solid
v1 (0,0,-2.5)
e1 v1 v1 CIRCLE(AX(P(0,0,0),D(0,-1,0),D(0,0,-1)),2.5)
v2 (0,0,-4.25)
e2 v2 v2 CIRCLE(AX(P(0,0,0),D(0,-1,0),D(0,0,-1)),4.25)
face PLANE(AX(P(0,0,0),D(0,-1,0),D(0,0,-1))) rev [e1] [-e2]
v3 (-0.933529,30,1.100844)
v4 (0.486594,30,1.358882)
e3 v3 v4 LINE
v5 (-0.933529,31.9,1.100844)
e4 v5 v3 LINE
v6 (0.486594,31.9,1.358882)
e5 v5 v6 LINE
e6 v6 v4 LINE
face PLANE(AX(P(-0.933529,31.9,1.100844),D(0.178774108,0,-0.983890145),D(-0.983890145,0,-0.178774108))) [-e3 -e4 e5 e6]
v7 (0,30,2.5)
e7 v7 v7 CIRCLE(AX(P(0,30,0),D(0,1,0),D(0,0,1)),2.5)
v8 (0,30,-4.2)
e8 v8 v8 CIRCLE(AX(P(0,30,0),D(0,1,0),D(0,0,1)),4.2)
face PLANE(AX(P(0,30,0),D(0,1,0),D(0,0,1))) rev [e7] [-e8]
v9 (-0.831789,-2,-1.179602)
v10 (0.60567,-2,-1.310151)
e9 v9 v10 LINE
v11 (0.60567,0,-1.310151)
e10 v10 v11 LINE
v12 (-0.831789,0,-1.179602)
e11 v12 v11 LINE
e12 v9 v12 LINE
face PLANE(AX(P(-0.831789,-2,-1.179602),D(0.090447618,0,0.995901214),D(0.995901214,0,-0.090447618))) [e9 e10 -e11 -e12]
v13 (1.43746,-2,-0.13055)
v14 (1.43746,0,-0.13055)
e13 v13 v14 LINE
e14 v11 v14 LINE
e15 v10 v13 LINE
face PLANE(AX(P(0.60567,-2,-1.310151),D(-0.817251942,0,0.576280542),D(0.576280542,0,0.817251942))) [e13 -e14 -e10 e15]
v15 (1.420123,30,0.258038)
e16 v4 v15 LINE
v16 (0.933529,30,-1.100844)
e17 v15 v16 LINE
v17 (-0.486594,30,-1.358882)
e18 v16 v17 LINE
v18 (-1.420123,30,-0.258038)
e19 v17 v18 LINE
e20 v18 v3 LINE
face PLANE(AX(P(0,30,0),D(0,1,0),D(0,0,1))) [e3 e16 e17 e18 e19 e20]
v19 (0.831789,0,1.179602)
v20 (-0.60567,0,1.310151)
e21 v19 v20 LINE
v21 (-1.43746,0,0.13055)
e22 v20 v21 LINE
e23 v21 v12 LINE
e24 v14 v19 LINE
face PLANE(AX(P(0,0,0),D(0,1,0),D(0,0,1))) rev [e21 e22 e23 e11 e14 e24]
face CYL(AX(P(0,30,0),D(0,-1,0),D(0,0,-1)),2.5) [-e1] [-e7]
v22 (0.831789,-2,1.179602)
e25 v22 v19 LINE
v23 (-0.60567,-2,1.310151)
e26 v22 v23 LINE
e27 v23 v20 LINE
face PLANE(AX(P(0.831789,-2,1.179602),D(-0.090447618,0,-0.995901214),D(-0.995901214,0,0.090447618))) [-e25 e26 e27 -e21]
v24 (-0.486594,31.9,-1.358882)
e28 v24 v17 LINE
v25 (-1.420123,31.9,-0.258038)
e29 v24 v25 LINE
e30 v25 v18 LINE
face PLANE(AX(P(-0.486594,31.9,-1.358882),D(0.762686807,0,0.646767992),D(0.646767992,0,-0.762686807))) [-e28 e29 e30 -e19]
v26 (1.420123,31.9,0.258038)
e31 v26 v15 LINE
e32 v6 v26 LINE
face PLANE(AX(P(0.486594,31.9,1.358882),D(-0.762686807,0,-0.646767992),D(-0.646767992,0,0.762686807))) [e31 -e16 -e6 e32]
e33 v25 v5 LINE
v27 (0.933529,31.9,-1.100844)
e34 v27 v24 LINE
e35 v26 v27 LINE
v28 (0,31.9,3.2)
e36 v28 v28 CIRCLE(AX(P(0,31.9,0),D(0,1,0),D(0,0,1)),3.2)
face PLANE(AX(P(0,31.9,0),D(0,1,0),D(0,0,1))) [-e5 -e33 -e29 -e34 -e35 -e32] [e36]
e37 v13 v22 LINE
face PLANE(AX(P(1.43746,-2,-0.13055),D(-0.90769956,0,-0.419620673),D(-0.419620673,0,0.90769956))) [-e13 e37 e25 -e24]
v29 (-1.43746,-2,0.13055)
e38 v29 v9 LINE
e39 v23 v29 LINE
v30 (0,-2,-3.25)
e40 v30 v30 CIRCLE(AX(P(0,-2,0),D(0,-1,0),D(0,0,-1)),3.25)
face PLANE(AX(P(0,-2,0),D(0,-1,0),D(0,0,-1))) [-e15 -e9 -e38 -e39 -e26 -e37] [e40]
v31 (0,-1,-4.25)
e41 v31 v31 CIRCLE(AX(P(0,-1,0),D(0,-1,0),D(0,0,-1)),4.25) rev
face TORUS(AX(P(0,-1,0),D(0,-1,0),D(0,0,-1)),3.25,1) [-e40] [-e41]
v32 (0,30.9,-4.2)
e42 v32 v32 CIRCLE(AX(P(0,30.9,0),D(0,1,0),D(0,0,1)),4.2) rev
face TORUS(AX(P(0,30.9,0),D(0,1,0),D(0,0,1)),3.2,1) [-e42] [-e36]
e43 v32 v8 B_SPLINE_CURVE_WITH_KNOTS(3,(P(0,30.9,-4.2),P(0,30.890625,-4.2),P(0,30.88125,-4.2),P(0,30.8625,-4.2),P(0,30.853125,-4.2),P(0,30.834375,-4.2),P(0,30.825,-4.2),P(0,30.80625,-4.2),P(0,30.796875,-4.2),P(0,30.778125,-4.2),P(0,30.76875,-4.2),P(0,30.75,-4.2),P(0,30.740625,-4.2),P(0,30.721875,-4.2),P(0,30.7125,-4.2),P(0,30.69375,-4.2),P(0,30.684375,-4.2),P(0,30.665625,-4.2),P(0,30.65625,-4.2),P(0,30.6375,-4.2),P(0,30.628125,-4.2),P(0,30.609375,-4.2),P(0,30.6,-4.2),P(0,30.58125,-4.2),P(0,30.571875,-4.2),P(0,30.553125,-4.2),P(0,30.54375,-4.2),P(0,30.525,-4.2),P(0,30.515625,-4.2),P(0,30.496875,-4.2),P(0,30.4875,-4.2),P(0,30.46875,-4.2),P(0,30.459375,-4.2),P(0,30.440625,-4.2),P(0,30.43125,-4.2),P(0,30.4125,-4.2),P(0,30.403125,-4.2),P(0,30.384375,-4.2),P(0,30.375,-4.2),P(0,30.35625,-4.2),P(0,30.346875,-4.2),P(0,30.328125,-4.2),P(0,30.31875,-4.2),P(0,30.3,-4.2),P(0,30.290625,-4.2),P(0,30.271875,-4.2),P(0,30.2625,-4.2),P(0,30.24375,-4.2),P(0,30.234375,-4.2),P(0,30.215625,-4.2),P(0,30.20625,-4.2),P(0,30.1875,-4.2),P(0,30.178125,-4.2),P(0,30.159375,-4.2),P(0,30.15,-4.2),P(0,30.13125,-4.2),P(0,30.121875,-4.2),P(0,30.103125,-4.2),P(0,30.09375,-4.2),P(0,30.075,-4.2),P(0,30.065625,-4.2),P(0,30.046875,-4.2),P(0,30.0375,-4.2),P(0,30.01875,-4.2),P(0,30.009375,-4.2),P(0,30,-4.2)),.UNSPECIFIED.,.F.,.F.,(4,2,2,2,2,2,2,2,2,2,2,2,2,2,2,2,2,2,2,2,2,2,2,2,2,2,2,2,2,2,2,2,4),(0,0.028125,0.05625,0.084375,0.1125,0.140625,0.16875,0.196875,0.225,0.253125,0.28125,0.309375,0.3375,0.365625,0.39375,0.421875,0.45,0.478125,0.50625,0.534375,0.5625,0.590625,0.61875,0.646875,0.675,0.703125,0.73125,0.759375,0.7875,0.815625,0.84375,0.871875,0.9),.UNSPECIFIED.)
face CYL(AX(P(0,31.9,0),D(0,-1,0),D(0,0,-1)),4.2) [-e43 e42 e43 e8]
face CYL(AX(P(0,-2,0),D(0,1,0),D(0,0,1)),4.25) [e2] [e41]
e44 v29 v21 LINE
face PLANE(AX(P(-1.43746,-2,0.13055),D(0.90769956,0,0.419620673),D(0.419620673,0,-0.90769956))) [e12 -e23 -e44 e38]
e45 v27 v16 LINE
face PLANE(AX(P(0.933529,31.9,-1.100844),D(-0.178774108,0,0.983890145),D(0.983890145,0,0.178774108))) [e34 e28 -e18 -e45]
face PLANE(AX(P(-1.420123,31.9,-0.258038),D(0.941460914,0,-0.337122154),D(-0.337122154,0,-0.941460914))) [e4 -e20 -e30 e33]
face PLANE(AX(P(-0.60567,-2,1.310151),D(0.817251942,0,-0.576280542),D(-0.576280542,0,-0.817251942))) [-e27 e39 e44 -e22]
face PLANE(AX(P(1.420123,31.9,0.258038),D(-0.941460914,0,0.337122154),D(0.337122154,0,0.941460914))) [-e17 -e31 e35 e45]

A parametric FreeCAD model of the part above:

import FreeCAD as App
import Part
import Sketcher


def edges_at(feature, points):
    """Names of the edges that pass closest to the given points."""
    edges = feature.Shape.Edges
    near = lambda p: min(range(len(edges)), key=lambda i: edges[i].distToShape(Part.Vertex(*p))[0])
    return sorted({f"Edge{near(p) + 1}" for p in points})

doc = App.newDocument("Part")
params = doc.addObject("Spreadsheet::Sheet", "Params")
for row, (alias, value) in enumerate([
    ("sketch1_diameter", "5 mm"),
    ("pad1_length", "30 mm"),
    ("sketch2_diameter", "8.4 mm"),
    ("pad2_length", "1.9 mm"),
    ("sketch3_diameter", "8.5 mm"),
    ("pad3_length", "2 mm"),
    ("fillet_radius", "1 mm"),
], start=1):
    params.set(f"A{row}", alias)
    params.set(f"B{row}", "=" + value)
    params.setAlias(f"B{row}", alias)

body = doc.addObject("PartDesign::Body", "Body")

# Sketch on XZ plane
sketch1 = doc.addObject("Sketcher::SketchObject", "Sketch")
body.addObject(sketch1)
sketch1.AttachmentSupport = (doc.XZ_Plane, [""])
sketch1.MapMode = "FlatFace"
sketch1.addGeometry(Part.Circle(App.Vector(0, 0, 0), App.Vector(0, 0, 1), 2.5), False)
sketch1.addConstraint(Sketcher.Constraint("Coincident", 0, 3, -1, 1))
sketch1.addConstraint(Sketcher.Constraint("Diameter", 0, 5.0))
sketch1.setExpression("Constraints[1]", "Params.sketch1_diameter")
pad1 = doc.addObject("PartDesign::Pad", "Pad")
body.addObject(pad1)
pad1.Profile = sketch1
pad1.setExpression("Length", "Params.pad1_length")
pad1.Reversed = True

# Sketch on XZ plane
sketch2 = doc.addObject("Sketcher::SketchObject", "Sketch001")
body.addObject(sketch2)
sketch2.AttachmentSupport = (doc.XZ_Plane, [""])
sketch2.MapMode = "FlatFace"
sketch2.AttachmentOffset = App.Placement(App.Vector(0, 0, -30), App.Rotation())
sketch2.addGeometry(Part.Circle(App.Vector(0, 0, 0), App.Vector(0, 0, 1), 4.2), False)
sketch2.addGeometry(Part.LineSegment(App.Vector(-0.5, -1.4, 0), App.Vector(0.9, -1.1, 0)), False)
sketch2.addGeometry(Part.LineSegment(App.Vector(0.9, -1.1, 0), App.Vector(1.4, 0.3, 0)), False)
sketch2.addGeometry(Part.LineSegment(App.Vector(1.4, 0.3, 0), App.Vector(0.5, 1.4, 0)), False)
sketch2.addGeometry(Part.LineSegment(App.Vector(0.5, 1.4, 0), App.Vector(-0.9, 1.1, 0)), False)
sketch2.addGeometry(Part.LineSegment(App.Vector(-0.9, 1.1, 0), App.Vector(-1.4, -0.3, 0)), False)
sketch2.addGeometry(Part.LineSegment(App.Vector(-1.4, -0.3, 0), App.Vector(-0.5, -1.4, 0)), False)
sketch2.addConstraint(Sketcher.Constraint("Coincident", 1, 2, 2, 1))
sketch2.addConstraint(Sketcher.Constraint("Coincident", 2, 2, 3, 1))
sketch2.addConstraint(Sketcher.Constraint("Coincident", 3, 2, 4, 1))
sketch2.addConstraint(Sketcher.Constraint("Coincident", 4, 2, 5, 1))
sketch2.addConstraint(Sketcher.Constraint("Coincident", 5, 2, 6, 1))
sketch2.addConstraint(Sketcher.Constraint("Coincident", 6, 2, 1, 1))
sketch2.addConstraint(Sketcher.Constraint("Coincident", 0, 3, -1, 1))
sketch2.addConstraint(Sketcher.Constraint("Symmetric", 1, 2, 4, 2, -1, 1))
sketch2.addConstraint(Sketcher.Constraint("Symmetric", 2, 2, 5, 2, -1, 1))
sketch2.addConstraint(Sketcher.Constraint("Symmetric", 3, 2, 6, 2, -1, 1))
sketch2.addConstraint(Sketcher.Constraint("Equal", 1, 2))
sketch2.addConstraint(Sketcher.Constraint("Equal", 2, 3))
sketch2.addConstraint(Sketcher.Constraint("Diameter", 0, 8.4))
sketch2.addConstraint(Sketcher.Constraint("DistanceX", -1, 1, 1, 2, 0.933529))
sketch2.addConstraint(Sketcher.Constraint("DistanceY", -1, 1, 2, 2, 0.258038))
sketch2.addConstraint(Sketcher.Constraint("DistanceY", -1, 1, 3, 2, 1.358882))
sketch2.addConstraint(Sketcher.Constraint("DistanceY", 1, 2, 2, 2, 1.358882))
sketch2.setExpression("Constraints[12]", "Params.sketch2_diameter")
pad2 = doc.addObject("PartDesign::Pad", "Pad001")
body.addObject(pad2)
pad2.Profile = sketch2
pad2.setExpression("Length", "Params.pad2_length")
pad2.Reversed = True

# Sketch on XZ plane
sketch3 = doc.addObject("Sketcher::SketchObject", "Sketch002")
body.addObject(sketch3)
sketch3.AttachmentSupport = (doc.XZ_Plane, [""])
sketch3.MapMode = "FlatFace"
sketch3.addGeometry(Part.Circle(App.Vector(0, 0, 0), App.Vector(0, 0, 1), 4.2), False)
sketch3.addGeometry(Part.LineSegment(App.Vector(-0.6, 1.3, 0), App.Vector(0.8, 1.2, 0)), False)
sketch3.addGeometry(Part.LineSegment(App.Vector(0.8, 1.2, 0), App.Vector(1.4, -0.1, 0)), False)
sketch3.addGeometry(Part.LineSegment(App.Vector(1.4, -0.1, 0), App.Vector(0.6, -1.3, 0)), False)
sketch3.addGeometry(Part.LineSegment(App.Vector(0.6, -1.3, 0), App.Vector(-0.8, -1.2, 0)), False)
sketch3.addGeometry(Part.LineSegment(App.Vector(-0.8, -1.2, 0), App.Vector(-1.4, 0.1, 0)), False)
sketch3.addGeometry(Part.LineSegment(App.Vector(-1.4, 0.1, 0), App.Vector(-0.6, 1.3, 0)), False)
sketch3.addConstraint(Sketcher.Constraint("Coincident", 1, 2, 2, 1))
sketch3.addConstraint(Sketcher.Constraint("Coincident", 2, 2, 3, 1))
sketch3.addConstraint(Sketcher.Constraint("Coincident", 3, 2, 4, 1))
sketch3.addConstraint(Sketcher.Constraint("Coincident", 4, 2, 5, 1))
sketch3.addConstraint(Sketcher.Constraint("Coincident", 5, 2, 6, 1))
sketch3.addConstraint(Sketcher.Constraint("Coincident", 6, 2, 1, 1))
sketch3.addConstraint(Sketcher.Constraint("Coincident", 0, 3, -1, 1))
sketch3.addConstraint(Sketcher.Constraint("Symmetric", 1, 2, 4, 2, -1, 1))
sketch3.addConstraint(Sketcher.Constraint("Symmetric", 2, 2, 5, 2, -1, 1))
sketch3.addConstraint(Sketcher.Constraint("Symmetric", 3, 2, 6, 2, -1, 1))
sketch3.addConstraint(Sketcher.Constraint("Equal", 1, 2))
sketch3.addConstraint(Sketcher.Constraint("Equal", 2, 3))
sketch3.addConstraint(Sketcher.Constraint("Diameter", 0, 8.5))
sketch3.addConstraint(Sketcher.Constraint("DistanceY", -1, 1, 1, 2, 1.179602))
sketch3.addConstraint(Sketcher.Constraint("DistanceY", 3, 2, 2, 2, 1.179602))
sketch3.addConstraint(Sketcher.Constraint("DistanceY", 3, 2, 5, 2, 1.440701))
sketch3.addConstraint(Sketcher.Constraint("DistanceX", -1, 1, 1, 2, 0.831789))
sketch3.setExpression("Constraints[12]", "Params.sketch3_diameter")
pad3 = doc.addObject("PartDesign::Pad", "Pad002")
body.addObject(pad3)
pad3.Profile = sketch3
pad3.setExpression("Length", "Params.pad3_length")
doc.recompute()

fillet = doc.addObject("PartDesign::Fillet", "Fillet")
body.addObject(fillet)
fillet.Base = (pad3, edges_at(pad3, [(0, 31.9, 4.2), (0, -2, 4.25)]))
fillet.setExpression("Radius", "Params.fillet_radius")

doc.recompute()
